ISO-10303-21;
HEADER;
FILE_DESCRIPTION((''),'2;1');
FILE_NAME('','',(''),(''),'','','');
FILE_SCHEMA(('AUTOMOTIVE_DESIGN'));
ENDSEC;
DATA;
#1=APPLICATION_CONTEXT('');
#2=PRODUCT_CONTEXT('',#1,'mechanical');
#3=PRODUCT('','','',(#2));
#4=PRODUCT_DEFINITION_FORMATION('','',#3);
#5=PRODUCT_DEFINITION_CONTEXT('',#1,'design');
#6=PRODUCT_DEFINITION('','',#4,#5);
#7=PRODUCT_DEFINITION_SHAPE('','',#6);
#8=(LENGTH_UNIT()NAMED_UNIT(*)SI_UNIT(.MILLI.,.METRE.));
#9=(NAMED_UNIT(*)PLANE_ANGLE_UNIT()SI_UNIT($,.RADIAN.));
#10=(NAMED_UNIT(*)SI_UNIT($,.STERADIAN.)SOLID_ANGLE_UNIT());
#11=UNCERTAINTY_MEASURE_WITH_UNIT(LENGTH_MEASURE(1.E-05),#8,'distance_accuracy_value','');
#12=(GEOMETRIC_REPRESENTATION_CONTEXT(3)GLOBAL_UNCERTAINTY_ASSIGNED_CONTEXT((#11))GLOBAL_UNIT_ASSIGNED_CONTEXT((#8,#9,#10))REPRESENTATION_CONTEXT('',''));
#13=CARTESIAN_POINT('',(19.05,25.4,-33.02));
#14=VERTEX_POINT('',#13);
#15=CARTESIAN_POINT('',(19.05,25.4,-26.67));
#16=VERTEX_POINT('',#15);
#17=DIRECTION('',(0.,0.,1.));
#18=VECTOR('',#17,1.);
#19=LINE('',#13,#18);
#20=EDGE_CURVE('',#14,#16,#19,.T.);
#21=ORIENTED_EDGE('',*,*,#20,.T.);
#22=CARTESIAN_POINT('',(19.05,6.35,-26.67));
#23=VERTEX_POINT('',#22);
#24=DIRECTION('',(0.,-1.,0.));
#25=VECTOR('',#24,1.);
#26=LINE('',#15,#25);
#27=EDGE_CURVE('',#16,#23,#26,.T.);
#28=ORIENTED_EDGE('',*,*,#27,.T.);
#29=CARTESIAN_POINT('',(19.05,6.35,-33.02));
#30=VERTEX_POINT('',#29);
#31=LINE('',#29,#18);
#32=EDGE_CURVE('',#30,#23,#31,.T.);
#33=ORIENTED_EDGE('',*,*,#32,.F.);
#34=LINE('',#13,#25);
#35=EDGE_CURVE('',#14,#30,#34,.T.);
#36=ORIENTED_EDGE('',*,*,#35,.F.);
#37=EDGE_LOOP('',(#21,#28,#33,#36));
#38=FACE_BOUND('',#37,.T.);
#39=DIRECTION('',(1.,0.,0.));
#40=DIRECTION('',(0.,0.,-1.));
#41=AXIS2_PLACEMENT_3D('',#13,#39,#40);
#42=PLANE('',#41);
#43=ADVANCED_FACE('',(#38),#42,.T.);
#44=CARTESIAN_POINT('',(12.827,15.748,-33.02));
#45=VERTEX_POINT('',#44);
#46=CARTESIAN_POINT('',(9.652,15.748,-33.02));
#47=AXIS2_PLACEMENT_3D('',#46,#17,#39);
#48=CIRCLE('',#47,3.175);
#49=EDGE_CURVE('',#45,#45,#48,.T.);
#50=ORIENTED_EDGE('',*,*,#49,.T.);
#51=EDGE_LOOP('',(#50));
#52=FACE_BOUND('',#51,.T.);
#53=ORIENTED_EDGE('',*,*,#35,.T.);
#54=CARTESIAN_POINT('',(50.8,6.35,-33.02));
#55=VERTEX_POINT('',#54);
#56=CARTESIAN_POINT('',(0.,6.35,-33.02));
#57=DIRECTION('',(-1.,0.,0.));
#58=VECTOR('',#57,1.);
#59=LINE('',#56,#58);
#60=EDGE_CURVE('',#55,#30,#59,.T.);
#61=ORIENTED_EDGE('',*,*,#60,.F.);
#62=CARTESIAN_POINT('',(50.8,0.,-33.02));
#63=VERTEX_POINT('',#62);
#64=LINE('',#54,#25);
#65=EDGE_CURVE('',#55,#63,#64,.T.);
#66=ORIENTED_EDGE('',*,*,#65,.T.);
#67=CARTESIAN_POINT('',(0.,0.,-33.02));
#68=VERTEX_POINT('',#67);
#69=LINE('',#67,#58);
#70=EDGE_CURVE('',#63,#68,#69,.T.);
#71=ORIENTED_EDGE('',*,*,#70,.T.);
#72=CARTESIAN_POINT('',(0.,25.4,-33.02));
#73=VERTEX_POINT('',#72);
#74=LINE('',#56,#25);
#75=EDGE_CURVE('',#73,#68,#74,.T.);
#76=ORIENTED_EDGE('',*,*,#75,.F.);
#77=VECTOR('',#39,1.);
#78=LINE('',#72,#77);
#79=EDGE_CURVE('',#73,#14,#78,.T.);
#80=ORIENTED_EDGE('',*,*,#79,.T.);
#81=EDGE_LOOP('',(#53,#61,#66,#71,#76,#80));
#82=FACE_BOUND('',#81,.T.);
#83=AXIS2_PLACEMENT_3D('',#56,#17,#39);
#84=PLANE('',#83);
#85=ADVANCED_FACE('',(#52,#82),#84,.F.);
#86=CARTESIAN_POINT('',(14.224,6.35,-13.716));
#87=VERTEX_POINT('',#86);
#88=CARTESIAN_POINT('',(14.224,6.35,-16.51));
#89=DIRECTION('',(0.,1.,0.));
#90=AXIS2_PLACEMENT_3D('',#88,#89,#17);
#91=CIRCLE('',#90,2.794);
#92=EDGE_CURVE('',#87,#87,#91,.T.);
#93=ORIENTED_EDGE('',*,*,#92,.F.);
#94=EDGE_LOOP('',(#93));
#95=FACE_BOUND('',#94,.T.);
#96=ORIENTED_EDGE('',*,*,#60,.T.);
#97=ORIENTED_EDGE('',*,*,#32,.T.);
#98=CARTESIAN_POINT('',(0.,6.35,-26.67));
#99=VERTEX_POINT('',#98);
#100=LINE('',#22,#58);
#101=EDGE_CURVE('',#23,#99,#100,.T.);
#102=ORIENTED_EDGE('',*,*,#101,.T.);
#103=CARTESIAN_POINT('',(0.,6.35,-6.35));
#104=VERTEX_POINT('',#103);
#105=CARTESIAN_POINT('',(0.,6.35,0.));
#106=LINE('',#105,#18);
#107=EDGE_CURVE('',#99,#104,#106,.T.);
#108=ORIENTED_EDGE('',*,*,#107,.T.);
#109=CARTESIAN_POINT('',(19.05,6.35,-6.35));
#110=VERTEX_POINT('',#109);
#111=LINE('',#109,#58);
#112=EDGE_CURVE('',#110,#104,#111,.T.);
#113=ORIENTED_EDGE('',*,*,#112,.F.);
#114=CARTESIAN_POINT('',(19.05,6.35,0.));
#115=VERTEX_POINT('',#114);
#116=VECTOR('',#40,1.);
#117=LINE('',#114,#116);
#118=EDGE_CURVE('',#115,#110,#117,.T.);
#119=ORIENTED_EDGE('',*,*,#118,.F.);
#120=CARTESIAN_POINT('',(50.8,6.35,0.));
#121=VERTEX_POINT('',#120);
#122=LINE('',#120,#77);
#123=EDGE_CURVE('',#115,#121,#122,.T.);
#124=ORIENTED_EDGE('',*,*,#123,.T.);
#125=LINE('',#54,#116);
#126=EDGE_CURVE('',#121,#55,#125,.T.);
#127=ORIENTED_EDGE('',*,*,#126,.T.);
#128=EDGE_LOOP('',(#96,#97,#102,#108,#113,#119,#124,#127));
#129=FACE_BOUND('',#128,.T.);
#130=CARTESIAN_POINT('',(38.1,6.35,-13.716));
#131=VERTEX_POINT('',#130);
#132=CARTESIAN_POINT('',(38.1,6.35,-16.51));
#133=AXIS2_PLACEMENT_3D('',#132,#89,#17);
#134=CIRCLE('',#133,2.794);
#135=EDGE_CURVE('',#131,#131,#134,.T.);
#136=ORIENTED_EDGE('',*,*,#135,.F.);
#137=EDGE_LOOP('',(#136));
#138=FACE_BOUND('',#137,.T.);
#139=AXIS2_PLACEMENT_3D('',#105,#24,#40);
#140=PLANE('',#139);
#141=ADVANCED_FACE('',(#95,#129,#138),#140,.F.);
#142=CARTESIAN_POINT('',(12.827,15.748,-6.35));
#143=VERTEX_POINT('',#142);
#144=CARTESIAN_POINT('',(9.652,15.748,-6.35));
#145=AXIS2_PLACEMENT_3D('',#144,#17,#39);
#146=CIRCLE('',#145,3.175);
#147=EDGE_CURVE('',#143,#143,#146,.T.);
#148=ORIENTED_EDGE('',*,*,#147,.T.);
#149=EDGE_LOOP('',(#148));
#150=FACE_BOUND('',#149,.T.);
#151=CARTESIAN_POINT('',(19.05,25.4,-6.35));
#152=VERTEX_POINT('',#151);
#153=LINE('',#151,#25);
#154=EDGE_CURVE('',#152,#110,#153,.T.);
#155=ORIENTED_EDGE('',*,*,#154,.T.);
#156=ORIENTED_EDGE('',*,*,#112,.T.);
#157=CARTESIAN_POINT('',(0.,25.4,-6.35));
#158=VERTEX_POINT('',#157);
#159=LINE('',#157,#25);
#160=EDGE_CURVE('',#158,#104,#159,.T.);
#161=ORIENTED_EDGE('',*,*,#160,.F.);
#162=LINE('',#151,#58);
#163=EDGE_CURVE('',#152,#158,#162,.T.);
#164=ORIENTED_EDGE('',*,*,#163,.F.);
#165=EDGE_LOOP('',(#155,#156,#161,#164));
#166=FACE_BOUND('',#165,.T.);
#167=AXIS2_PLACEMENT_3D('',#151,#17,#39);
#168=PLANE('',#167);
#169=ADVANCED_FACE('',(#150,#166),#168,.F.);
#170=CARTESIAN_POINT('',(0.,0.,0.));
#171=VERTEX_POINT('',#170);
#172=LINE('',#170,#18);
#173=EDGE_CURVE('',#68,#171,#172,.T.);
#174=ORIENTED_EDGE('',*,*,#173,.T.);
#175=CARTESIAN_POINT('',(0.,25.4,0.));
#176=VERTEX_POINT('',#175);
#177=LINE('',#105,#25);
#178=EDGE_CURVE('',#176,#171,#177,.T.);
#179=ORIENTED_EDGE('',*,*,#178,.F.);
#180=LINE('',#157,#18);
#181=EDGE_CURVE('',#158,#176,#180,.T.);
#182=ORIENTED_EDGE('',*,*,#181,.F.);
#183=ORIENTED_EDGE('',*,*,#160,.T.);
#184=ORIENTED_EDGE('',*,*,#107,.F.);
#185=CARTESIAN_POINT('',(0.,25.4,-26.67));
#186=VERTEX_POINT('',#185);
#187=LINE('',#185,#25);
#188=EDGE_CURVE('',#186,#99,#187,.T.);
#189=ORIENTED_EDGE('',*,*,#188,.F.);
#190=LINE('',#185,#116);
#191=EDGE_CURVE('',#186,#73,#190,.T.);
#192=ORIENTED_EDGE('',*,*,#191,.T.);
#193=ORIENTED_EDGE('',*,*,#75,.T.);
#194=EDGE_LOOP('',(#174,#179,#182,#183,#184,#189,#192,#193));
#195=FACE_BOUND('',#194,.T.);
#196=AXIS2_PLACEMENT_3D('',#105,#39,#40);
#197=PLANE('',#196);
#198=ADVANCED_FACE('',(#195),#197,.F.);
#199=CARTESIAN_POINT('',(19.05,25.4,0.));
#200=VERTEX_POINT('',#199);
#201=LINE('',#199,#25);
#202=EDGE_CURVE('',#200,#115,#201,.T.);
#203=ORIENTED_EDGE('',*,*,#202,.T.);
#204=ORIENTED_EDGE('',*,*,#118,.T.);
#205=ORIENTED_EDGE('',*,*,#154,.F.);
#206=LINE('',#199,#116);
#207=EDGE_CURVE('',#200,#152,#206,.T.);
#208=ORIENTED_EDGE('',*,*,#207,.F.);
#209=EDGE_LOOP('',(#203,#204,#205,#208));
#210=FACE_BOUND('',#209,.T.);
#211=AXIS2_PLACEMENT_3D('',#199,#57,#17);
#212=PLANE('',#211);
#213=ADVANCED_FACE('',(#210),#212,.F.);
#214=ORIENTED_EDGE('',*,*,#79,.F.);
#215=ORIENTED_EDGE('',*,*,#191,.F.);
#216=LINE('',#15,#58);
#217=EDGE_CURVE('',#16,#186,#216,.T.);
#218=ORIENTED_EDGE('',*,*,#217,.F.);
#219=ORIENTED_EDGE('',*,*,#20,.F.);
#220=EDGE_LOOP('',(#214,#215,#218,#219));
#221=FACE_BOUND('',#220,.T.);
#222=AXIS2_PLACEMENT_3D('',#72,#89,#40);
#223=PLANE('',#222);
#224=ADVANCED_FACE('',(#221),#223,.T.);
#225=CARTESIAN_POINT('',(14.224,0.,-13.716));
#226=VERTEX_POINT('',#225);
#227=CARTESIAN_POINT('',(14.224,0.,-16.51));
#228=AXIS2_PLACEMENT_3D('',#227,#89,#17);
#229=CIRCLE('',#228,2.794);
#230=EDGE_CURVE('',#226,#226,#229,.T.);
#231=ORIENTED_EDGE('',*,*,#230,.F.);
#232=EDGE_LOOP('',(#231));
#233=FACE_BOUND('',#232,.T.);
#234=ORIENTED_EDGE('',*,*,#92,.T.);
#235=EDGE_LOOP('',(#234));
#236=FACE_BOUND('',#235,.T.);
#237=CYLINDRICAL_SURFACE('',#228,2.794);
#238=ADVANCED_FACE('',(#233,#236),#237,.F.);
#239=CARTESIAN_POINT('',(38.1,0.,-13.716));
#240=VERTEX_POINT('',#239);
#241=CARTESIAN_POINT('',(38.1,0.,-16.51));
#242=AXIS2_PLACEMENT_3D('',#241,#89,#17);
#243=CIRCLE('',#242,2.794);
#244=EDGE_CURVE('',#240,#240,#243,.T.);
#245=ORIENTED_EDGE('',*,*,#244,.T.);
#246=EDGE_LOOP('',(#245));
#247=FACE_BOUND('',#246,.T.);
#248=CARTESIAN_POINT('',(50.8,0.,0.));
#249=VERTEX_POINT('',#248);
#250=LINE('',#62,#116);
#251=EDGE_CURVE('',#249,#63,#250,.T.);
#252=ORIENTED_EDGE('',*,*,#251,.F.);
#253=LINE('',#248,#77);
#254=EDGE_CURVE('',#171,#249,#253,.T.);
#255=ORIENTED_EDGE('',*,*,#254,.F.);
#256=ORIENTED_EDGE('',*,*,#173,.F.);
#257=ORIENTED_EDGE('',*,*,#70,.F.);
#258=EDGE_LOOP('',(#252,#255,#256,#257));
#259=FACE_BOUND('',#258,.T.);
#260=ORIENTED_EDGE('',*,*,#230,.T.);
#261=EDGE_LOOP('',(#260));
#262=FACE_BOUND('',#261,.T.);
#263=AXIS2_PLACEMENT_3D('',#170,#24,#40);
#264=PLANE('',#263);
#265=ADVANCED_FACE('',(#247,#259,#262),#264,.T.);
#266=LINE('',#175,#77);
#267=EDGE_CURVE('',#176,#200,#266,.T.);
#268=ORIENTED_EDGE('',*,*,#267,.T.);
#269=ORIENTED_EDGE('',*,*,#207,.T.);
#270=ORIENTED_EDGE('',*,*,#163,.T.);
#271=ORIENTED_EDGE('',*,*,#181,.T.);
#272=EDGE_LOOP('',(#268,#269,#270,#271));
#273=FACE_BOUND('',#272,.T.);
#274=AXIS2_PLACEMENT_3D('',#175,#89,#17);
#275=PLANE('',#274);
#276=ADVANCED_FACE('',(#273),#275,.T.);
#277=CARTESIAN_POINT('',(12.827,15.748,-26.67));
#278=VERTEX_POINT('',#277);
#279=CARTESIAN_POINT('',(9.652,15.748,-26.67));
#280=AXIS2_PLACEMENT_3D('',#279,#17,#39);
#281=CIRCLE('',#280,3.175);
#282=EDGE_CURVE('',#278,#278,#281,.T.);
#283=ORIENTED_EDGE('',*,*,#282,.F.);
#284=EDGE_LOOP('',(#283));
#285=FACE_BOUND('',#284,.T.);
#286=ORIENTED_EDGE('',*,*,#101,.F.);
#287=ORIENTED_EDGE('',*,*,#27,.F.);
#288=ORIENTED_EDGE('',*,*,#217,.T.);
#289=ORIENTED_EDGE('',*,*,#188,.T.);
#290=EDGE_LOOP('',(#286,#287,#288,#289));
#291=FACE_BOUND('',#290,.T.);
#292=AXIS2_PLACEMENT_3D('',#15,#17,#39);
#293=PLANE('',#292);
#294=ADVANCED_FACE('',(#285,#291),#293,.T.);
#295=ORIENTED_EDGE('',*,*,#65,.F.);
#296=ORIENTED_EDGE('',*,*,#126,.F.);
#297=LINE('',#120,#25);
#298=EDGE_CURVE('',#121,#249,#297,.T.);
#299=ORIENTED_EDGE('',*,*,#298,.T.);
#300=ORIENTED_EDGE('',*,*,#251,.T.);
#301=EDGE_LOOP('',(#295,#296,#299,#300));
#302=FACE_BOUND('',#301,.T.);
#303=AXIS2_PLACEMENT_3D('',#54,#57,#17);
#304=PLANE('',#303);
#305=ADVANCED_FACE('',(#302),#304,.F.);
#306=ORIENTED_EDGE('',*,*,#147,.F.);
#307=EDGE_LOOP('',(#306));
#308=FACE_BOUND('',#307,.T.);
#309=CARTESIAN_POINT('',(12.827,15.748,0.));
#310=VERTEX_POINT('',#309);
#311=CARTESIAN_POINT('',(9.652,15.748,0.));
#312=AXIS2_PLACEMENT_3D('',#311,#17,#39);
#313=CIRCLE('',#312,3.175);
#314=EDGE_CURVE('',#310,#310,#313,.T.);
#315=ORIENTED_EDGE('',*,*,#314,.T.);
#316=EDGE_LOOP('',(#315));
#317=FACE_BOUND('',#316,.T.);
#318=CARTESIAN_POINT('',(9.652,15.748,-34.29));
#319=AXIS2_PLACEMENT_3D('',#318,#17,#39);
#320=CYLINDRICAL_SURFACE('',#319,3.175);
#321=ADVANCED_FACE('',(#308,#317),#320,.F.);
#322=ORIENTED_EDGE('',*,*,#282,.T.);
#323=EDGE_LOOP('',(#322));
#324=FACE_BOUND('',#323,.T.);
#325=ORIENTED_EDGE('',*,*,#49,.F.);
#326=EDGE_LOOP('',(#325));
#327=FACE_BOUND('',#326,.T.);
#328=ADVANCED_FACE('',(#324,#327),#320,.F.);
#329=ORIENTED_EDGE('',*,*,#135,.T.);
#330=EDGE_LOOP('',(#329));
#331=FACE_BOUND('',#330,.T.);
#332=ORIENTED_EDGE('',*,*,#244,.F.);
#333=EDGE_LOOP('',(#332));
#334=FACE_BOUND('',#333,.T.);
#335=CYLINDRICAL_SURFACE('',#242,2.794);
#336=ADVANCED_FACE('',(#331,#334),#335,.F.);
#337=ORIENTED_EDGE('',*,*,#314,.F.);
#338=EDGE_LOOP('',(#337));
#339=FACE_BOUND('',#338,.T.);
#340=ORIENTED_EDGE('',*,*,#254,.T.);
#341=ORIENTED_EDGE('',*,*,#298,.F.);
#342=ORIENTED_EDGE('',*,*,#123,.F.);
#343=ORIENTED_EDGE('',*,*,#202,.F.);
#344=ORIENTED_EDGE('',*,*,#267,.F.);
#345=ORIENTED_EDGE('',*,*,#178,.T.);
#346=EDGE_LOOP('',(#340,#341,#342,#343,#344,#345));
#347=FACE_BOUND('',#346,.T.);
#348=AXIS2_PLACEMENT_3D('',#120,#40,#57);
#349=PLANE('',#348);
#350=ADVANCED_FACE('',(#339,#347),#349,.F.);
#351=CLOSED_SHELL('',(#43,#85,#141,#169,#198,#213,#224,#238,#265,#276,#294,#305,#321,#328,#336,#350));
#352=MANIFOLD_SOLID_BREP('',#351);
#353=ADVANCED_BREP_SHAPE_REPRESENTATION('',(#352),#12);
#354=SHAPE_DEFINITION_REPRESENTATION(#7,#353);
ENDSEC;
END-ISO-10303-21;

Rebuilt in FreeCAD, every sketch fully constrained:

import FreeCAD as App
import Part
import Sketcher

V = App.Vector
Q = App.Units.Quantity


def add_polygon(sketch, points):
    """Adds a closed chain of lines whose ends are joined by coincident constraints."""
    first, n = sketch.GeometryCount, len(points)
    for a, b in zip(points, points[1:] + points[:1]):
        sketch.addGeometry(Part.LineSegment(App.Vector(*a, 0), App.Vector(*b, 0)), False)
    for i in range(n):
        sketch.addConstraint(Sketcher.Constraint("Coincident", first + i, 2, first + (i + 1) % n, 1))

doc = App.newDocument("Part")
body = doc.addObject("PartDesign::Body", "Body")

sketch1 = doc.addObject("Sketcher::SketchObject", "Sketch")
body.addObject(sketch1)
sketch1.AttachmentSupport = (doc.XZ_Plane, [""])
sketch1.MapMode = "FlatFace"
add_polygon(sketch1, [(0, -33), (0, 0), (51, 0), (51, -33)])
sketch1.addConstraint(Sketcher.Constraint("Vertical", 0))
sketch1.addConstraint(Sketcher.Constraint("Horizontal", 1))
sketch1.addConstraint(Sketcher.Constraint("Vertical", 2))
sketch1.addConstraint(Sketcher.Constraint("Horizontal", 3))
sketch1.addConstraint(Sketcher.Constraint("Coincident", 0, 2, -1, 1))
sketch1.addConstraint(Sketcher.Constraint("DistanceX", 1, 1, 1, 2, Q("2 in")))
sketch1.addConstraint(Sketcher.Constraint("DistanceY", 0, 1, 0, 2, Q("1.3 in")))
pad1 = doc.addObject("PartDesign::Pad", "Pad")
body.addObject(pad1)
pad1.Profile = sketch1
pad1.Length = Q("0.25 in")
pad1.Reversed = True

sketch2 = doc.addObject("Sketcher::SketchObject", "Sketch001")
body.addObject(sketch2)
sketch2.AttachmentSupport = (doc.XZ_Plane, [""])
sketch2.MapMode = "FlatFace"
sketch2.AttachmentOffset = App.Placement(V(0, 0, -0.25 * 25.4), App.Rotation())
sketch2.addGeometry(Part.Circle(V(14.2, -16.5, 0), V(0, 0, 1), 2.8), False)
sketch2.addGeometry(Part.Circle(V(38.1, -16.5, 0), V(0, 0, 1), 2.8), False)
sketch2.addConstraint(Sketcher.Constraint("Equal", 0, 1))
sketch2.addConstraint(Sketcher.Constraint("Horizontal", 0, 3, 1, 3))
sketch2.addConstraint(Sketcher.Constraint("Diameter", 0, Q("0.22 in")))
sketch2.addConstraint(Sketcher.Constraint("DistanceX", -1, 1, 1, 3, Q("1.5 in")))
sketch2.addConstraint(Sketcher.Constraint("DistanceX", -1, 1, 0, 3, Q("0.56 in")))
sketch2.addConstraint(Sketcher.Constraint("DistanceY", 0, 3, -1, 1, Q("0.65 in")))
pocket1 = doc.addObject("PartDesign::Pocket", "Pocket")
body.addObject(pocket1)
pocket1.Profile = sketch2
pocket1.Type = "ThroughAll"
pocket1.Reversed = True

sketch3 = doc.addObject("Sketcher::SketchObject", "Sketch002")
body.addObject(sketch3)
sketch3.AttachmentSupport = (doc.XZ_Plane, [""])
sketch3.MapMode = "FlatFace"
sketch3.AttachmentOffset = App.Placement(V(0, 0, -0.25 * 25.4), App.Rotation())
add_polygon(sketch3, [(0, -6), (0, 0), (19, 0), (19, -6)])
sketch3.addConstraint(Sketcher.Constraint("Vertical", 0))
sketch3.addConstraint(Sketcher.Constraint("Horizontal", 1))
sketch3.addConstraint(Sketcher.Constraint("Vertical", 2))
sketch3.addConstraint(Sketcher.Constraint("Horizontal", 3))
sketch3.addConstraint(Sketcher.Constraint("Coincident", 0, 2, -1, 1))
sketch3.addConstraint(Sketcher.Constraint("DistanceX", 1, 1, 1, 2, Q("0.75 in")))
sketch3.addConstraint(Sketcher.Constraint("DistanceY", 0, 1, 0, 2, Q("0.25 in")))
pad2 = doc.addObject("PartDesign::Pad", "Pad001")
body.addObject(pad2)
pad2.Profile = sketch3
pad2.Length = Q("0.75 in")
pad2.Reversed = True
doc.recompute()

datumplane = doc.addObject("PartDesign::Plane", "DatumPlane")
body.addObject(datumplane)
datumplane.AttachmentSupport = (doc.XY_Plane, [""])
datumplane.MapMode = "FlatFace"
datumplane.AttachmentOffset = App.Placement(V(0, 0, -0.65 * 25.4), App.Rotation())
mirrored = doc.addObject("PartDesign::Mirrored", "Mirrored")
body.addObject(mirrored)
mirrored.Originals = [pad2]
mirrored.MirrorPlane = (datumplane, [""])
body.Tip = mirrored

sketch4 = doc.addObject("Sketcher::SketchObject", "Sketch003")
body.addObject(sketch4)
sketch4.AttachmentSupport = (doc.XY_Plane, [""])
sketch4.MapMode = "FlatFace"
sketch4.addGeometry(Part.Circle(V(9.7, 15.7, 0), V(0, 0, 1), 3.2), False)
sketch4.addConstraint(Sketcher.Constraint("Diameter", 0, Q("0.25 in")))
sketch4.addConstraint(Sketcher.Constraint("DistanceX", -1, 1, 0, 3, Q("0.38 in")))
sketch4.addConstraint(Sketcher.Constraint("DistanceY", -1, 1, 0, 3, Q("0.62 in")))
pocket2 = doc.addObject("PartDesign::Pocket", "Pocket001")
body.addObject(pocket2)
pocket2.Profile = sketch4
pocket2.Length = Q("1.35 in")

doc.recompute()
